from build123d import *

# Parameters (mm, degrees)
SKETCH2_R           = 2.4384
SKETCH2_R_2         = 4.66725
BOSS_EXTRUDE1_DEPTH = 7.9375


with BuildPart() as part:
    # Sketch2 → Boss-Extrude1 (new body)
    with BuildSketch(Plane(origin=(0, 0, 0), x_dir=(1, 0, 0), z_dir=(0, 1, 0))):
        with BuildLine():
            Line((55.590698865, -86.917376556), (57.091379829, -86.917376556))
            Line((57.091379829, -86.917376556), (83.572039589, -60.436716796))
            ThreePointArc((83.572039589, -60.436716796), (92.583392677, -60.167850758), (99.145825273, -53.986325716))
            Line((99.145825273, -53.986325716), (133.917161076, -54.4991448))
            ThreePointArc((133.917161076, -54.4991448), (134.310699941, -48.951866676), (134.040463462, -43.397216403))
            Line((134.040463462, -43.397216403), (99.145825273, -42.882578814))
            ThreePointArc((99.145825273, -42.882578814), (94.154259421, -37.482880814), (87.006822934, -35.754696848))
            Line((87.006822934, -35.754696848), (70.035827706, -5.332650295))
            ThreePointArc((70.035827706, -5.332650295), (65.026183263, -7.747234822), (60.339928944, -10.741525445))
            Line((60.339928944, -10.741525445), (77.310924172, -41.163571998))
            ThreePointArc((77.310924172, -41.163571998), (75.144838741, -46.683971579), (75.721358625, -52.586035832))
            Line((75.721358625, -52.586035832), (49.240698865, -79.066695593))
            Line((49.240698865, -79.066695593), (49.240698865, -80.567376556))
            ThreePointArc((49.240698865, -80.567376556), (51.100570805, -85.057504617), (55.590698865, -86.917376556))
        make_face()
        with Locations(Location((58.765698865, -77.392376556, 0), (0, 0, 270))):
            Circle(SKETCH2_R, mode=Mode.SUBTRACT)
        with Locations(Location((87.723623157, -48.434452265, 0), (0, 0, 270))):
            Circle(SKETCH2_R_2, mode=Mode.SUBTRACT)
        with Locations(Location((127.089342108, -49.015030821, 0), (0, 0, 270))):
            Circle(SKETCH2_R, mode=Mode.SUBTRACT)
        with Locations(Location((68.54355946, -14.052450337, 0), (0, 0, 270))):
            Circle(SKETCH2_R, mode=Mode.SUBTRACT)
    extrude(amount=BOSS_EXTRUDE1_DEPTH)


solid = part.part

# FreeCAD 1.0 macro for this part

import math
import FreeCAD as App
import Part
import Sketcher
Q = App.Units.Quantity

doc = App.newDocument("Part")
body = doc.addObject("PartDesign::Body", "Body")

sketch1 = body.newObject("Sketcher::SketchObject", "Sketch")
sketch1.AttachmentSupport = (doc.getObject("XZ_Plane"), [""])
sketch1.MapMode = "FlatFace"
sketch1.addGeometry(Part.LineSegment(App.Vector(55.6, 86.9, 0), App.Vector(57.1, 86.9, 0)), False)
sketch1.addGeometry(Part.LineSegment(App.Vector(57.1, 86.9, 0), App.Vector(83.6, 60.4, 0)), False)
sketch1.addGeometry(Part.ArcOfCircle(Part.Circle(App.Vector(87.7, 48.4, 0), App.Vector(0, 0, 1), 12.7), math.radians(26), math.radians(109)), False)
sketch1.addGeometry(Part.LineSegment(App.Vector(99.1, 54, 0), App.Vector(133.9, 54.5, 0)), False)
sketch1.addGeometry(Part.ArcOfCircle(Part.Circle(App.Vector(87.7, 48.4, 0), App.Vector(0, 0, 1), 46.6), math.radians(-6.21), math.radians(7.48)), False)
sketch1.addGeometry(Part.LineSegment(App.Vector(134, 43.4, 0), App.Vector(99.1, 42.9, 0)), False)
sketch1.addGeometry(Part.ArcOfCircle(Part.Circle(App.Vector(87.7, 48.4, 0), App.Vector(0, 0, 1), 12.7), math.radians(-93), math.radians(-26)), False)
sketch1.addGeometry(Part.LineSegment(App.Vector(87, 35.8, 0), App.Vector(70, 5.3, 0)), False)
sketch1.addGeometry(Part.ArcOfCircle(Part.Circle(App.Vector(87.7, 48.4, 0), App.Vector(0, 0, 1), 46.6), math.radians(-126), math.radians(-112.31)), False)
sketch1.addGeometry(Part.LineSegment(App.Vector(60.3, 10.7, 0), App.Vector(77.3, 41.2, 0)), False)
sketch1.addGeometry(Part.ArcOfCircle(Part.Circle(App.Vector(87.7, 48.4, 0), App.Vector(0, 0, 1), 12.7), math.radians(161), math.radians(215)), False)
sketch1.addGeometry(Part.LineSegment(App.Vector(75.7, 52.6, 0), App.Vector(49.2, 79.1, 0)), False)
sketch1.addGeometry(Part.LineSegment(App.Vector(49.2, 79.1, 0), App.Vector(49.2, 80.6, 0)), False)
sketch1.addGeometry(Part.ArcOfCircle(Part.Circle(App.Vector(55.6, 80.6, 0), App.Vector(0, 0, 1), 6.3), math.radians(90), math.radians(180)), False)
sketch1.addGeometry(Part.Circle(App.Vector(58.8, 77.4, 0), App.Vector(0, 0, 1), 2.4), False)
sketch1.addGeometry(Part.Circle(App.Vector(87.7, 48.4, 0), App.Vector(0, 0, 1), 4.7), False)
sketch1.addGeometry(Part.Circle(App.Vector(127.1, 49, 0), App.Vector(0, 0, 1), 2.4), False)
sketch1.addGeometry(Part.Circle(App.Vector(68.5, 14.1, 0), App.Vector(0, 0, 1), 2.4), False)
sketch1.addConstraint(Sketcher.Constraint("Coincident", 0, 2, 1, 1))
sketch1.addConstraint(Sketcher.Constraint("Coincident", 1, 2, 2, 2))
sketch1.addConstraint(Sketcher.Constraint("Coincident", 2, 1, 3, 1))
sketch1.addConstraint(Sketcher.Constraint("Coincident", 3, 2, 4, 2))
sketch1.addConstraint(Sketcher.Constraint("Coincident", 4, 1, 5, 1))
sketch1.addConstraint(Sketcher.Constraint("Coincident", 5, 2, 6, 2))
sketch1.addConstraint(Sketcher.Constraint("Coincident", 6, 1, 7, 1))
sketch1.addConstraint(Sketcher.Constraint("Coincident", 7, 2, 8, 2))
sketch1.addConstraint(Sketcher.Constraint("Coincident", 8, 1, 9, 1))
sketch1.addConstraint(Sketcher.Constraint("Coincident", 9, 2, 10, 2))
sketch1.addConstraint(Sketcher.Constraint("Coincident", 10, 1, 11, 1))
sketch1.addConstraint(Sketcher.Constraint("Coincident", 11, 2, 12, 1))
sketch1.addConstraint(Sketcher.Constraint("Tangent", 12, 2, 13, 2))
sketch1.addConstraint(Sketcher.Constraint("Tangent", 13, 1, 0, 1))
sketch1.addConstraint(Sketcher.Constraint("Horizontal", 0))
sketch1.addConstraint(Sketcher.Constraint("Vertical", 12))
sketch1.addConstraint(Sketcher.Constraint("Coincident", 4, 3, 2, 3))
sketch1.addConstraint(Sketcher.Constraint("Coincident", 6, 3, 2, 3))
sketch1.addConstraint(Sketcher.Constraint("Coincident", 8, 3, 2, 3))
sketch1.addConstraint(Sketcher.Constraint("Coincident", 10, 3, 2, 3))
sketch1.addConstraint(Sketcher.Constraint("Coincident", 15, 3, 2, 3))
sketch1.addConstraint(Sketcher.Constraint("Equal", 2, 6))
sketch1.addConstraint(Sketcher.Constraint("Equal", 4, 8))
sketch1.addConstraint(Sketcher.Constraint("Equal", 6, 10))
sketch1.addConstraint(Sketcher.Constraint("Equal", 14, 16))
sketch1.addConstraint(Sketcher.Constraint("Equal", 16, 17))
sketch1.addConstraint(Sketcher.Constraint("Parallel", 3, 5))
sketch1.addConstraint(Sketcher.Constraint("Parallel", 7, 9))
sketch1.addConstraint(Sketcher.Constraint("Parallel", 1, 11))
sketch1.addConstraint(Sketcher.Constraint("Vertical", 2, 1, 5, 2))
sketch1.addConstraint(Sketcher.Constraint("Equal", 0, 12))
sketch1.addConstraint(Sketcher.Constraint("Equal", 7, 9))
sketch1.addConstraint(Sketcher.Constraint("Equal", 1, 11))
sketch1.addConstraint(Sketcher.Constraint("Radius", 2, Q("0.5 in")))
sketch1.addConstraint(Sketcher.Constraint("Radius", 13, Q("0.25 in")))
sketch1.addConstraint(Sketcher.Constraint("Diameter", 14, Q("0.192 in")))
sketch1.addConstraint(Sketcher.Constraint("Angle", 1, Q("-45 deg")))
sketch1.addConstraint(Sketcher.Constraint("Diameter", 15, Q("0.3675 in")))
sketch1.addConstraint(Sketcher.Constraint("Radius", 4, 46.58995))
sketch1.addConstraint(Sketcher.Constraint("DistanceX", 13, 3, 14, 3, Q("0.125 in")))
sketch1.addConstraint(Sketcher.Constraint("DistanceY", 14, 3, 13, 3, Q("0.125 in")))
sketch1.addConstraint(Sketcher.Constraint("DistanceX", 0, 1, 0, 2, 1.500681))
sketch1.addConstraint(Sketcher.Constraint("DistanceX", -1, 1, 13, 3, 55.590699))
sketch1.addConstraint(Sketcher.Constraint("DistanceY", 17, 3, 4, 3, 34.382002))
sketch1.addConstraint(Sketcher.Constraint("DistanceX", 6, 1, 8, 3, 0.7168))
sketch1.addConstraint(Sketcher.Constraint("DistanceY", 7, 2, 17, 3, 8.7198))
sketch1.addConstraint(Sketcher.Constraint("Distance", 1, 37.449308))
sketch1.addConstraint(Sketcher.Constraint("DistanceY", -1, 1, 16, 3, 49.015031))
sketch1.addConstraint(Sketcher.Constraint("DistanceX", -1, 1, 17, 3, 68.543559))
sketch1.addConstraint(Sketcher.Constraint("DistanceY", -1, 1, 17, 3, 14.05245))
sketch1.addConstraint(Sketcher.Constraint("DistanceX", -1, 1, 3, 2, 133.917161))
sketch1.addConstraint(Sketcher.Constraint("DistanceY", -1, 1, 5, 2, 42.882579))
sketch1.addConstraint(Sketcher.Constraint("DistanceX", 6, 3, 16, 3, 39.365719))
pad1 = body.newObject("PartDesign::Pad", "Pad")
pad1.Profile = sketch1
pad1.Length = Q("0.3125 in")
pad1.Reversed = True

doc.recompute()
